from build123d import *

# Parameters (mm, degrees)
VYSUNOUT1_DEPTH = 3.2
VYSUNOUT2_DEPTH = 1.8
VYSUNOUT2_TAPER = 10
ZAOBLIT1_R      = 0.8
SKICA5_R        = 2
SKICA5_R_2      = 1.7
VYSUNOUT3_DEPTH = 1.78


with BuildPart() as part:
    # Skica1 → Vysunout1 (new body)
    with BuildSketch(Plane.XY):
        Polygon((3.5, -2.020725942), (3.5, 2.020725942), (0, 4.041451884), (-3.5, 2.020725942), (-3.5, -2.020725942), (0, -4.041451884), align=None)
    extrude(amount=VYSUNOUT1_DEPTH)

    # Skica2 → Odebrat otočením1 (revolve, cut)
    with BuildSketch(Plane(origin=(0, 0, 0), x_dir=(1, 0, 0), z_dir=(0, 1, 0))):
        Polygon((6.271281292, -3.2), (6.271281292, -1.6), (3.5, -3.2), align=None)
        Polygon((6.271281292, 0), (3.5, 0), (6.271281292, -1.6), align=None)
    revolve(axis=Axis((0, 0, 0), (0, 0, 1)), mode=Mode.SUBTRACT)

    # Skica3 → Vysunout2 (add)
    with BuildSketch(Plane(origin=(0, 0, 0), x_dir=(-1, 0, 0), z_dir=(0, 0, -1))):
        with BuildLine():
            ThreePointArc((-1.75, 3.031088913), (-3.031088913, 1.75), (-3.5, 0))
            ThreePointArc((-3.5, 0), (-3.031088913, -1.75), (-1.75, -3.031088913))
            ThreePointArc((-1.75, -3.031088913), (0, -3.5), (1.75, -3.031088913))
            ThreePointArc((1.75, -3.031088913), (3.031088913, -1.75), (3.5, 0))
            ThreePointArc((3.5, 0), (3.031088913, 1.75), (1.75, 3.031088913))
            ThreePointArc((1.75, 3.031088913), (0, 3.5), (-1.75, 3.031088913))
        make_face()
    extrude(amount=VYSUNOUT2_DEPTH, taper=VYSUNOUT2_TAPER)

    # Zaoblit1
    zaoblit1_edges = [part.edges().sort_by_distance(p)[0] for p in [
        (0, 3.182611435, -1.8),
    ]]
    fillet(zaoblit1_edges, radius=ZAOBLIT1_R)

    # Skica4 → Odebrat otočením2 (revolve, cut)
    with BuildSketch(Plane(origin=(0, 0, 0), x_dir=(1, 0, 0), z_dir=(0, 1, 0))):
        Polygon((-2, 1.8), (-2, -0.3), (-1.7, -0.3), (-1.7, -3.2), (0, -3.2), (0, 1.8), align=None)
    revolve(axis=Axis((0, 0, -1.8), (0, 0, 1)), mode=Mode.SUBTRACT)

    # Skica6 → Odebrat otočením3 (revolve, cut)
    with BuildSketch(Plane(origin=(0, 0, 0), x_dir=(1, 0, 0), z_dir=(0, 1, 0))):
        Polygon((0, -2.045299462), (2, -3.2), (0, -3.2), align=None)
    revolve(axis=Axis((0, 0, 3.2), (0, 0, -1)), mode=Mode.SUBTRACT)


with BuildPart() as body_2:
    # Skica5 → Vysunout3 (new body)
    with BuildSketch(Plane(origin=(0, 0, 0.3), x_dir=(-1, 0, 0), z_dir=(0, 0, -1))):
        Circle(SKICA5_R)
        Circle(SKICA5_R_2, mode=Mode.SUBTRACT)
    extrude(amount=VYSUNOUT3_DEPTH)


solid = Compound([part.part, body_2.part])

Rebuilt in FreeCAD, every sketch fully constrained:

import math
import FreeCAD as App
import Part
import Sketcher
from FreeCAD import Vector
Q = App.Units.Quantity


def edges_at(feature, points):
    """Names of the edges that pass closest to the given points."""
    edges = feature.Shape.Edges
    near = lambda p: min(range(len(edges)), key=lambda i: edges[i].distToShape(Part.Vertex(*p))[0])
    return sorted({f"Edge{near(p) + 1}" for p in points})


def add_polygon(sketch, points):
    """Adds a closed chain of lines whose ends are joined by coincident constraints."""
    first, n = sketch.GeometryCount, len(points)
    for a, b in zip(points, points[1:] + points[:1]):
        sketch.addGeometry(Part.LineSegment(App.Vector(*a, 0), App.Vector(*b, 0)), False)
    for i in range(n):
        sketch.addConstraint(Sketcher.Constraint("Coincident", first + i, 2, first + (i + 1) % n, 1))

doc = App.newDocument("Part")
body = doc.addObject("PartDesign::Body", "Body")

# Sketch on XY plane
sketch1 = doc.addObject("Sketcher::SketchObject", "Sketch")
body.addObject(sketch1)
sketch1.AttachmentSupport = (doc.XY_Plane, [""])
sketch1.MapMode = "FlatFace"
add_polygon(sketch1, [(3.5, -2.020726), (3.5, 2.020726), (0, 4.041452), (-3.5, 2.020726), (-3.5, -2.020726), (0, -4.041452)])  # lines 0-5
sketch1.addConstraint(Sketcher.Constraint("Vertical", 0))
sketch1.addConstraint(Sketcher.Constraint("Vertical", 3))
sketch1.addConstraint(Sketcher.Constraint("Symmetric", 0, 2, 3, 2, -1, 1))
sketch1.addConstraint(Sketcher.Constraint("Symmetric", 1, 2, 4, 2, -1, 1))
sketch1.addConstraint(Sketcher.Constraint("PointOnObject", 1, 2, -2))
sketch1.addConstraint(Sketcher.Constraint("Parallel", 2, 5))
sketch1.addConstraint(Sketcher.Constraint("Horizontal", 0, 2, 2, 2))
sketch1.addConstraint(Sketcher.Constraint("Angle", 1, Q("150 deg")))
sketch1.addConstraint(Sketcher.Constraint("DistanceX", 2, 2, 0, 2, 7.0))
sketch1.addConstraint(Sketcher.Constraint("DistanceY", 0, 1, 0, 2, 4.041452))
pad1 = doc.addObject("PartDesign::Pad", "Pad")
body.addObject(pad1)
pad1.Profile = sketch1
pad1.Length = 3.2

# Sketch on XZ plane
sketch2 = doc.addObject("Sketcher::SketchObject", "Sketch001")
body.addObject(sketch2)
sketch2.AttachmentSupport = (doc.XZ_Plane, [""])
sketch2.MapMode = "FlatFace"
add_polygon(sketch2, [(6.271281, 3.2), (6.271281, 1.6), (3.5, 3.2)])  # lines 0-2
add_polygon(sketch2, [(6.271281, 0), (3.5, 0), (6.271281, 1.6)])  # lines 3-5
sketch2.addConstraint(Sketcher.Constraint("Vertical", 0))
sketch2.addConstraint(Sketcher.Constraint("Horizontal", 2))
sketch2.addConstraint(Sketcher.Constraint("Horizontal", 3))
sketch2.addConstraint(Sketcher.Constraint("Vertical", 5))
sketch2.addConstraint(Sketcher.Constraint("Coincident", 4, 2, 0, 2))
sketch2.addConstraint(Sketcher.Constraint("PointOnObject", 3, 2, -1))
sketch2.addConstraint(Sketcher.Constraint("Vertical", 1, 2, 3, 2))
sketch2.addConstraint(Sketcher.Constraint("Equal", 0, 5))
sketch2.addConstraint(Sketcher.Constraint("Angle", 1, Q("150 deg")))
sketch2.addConstraint(Sketcher.Constraint("DistanceY", 0, 2, 0, 1, 1.6))
sketch2.addConstraint(Sketcher.Constraint("DistanceX", -1, 1, 1, 2, 3.5))
groove = doc.addObject("PartDesign::Groove", "Groove")
body.addObject(groove)
groove.Profile = sketch2
groove.ReferenceAxis = (sketch2, ["V_Axis"])
groove.Angle = 360

# Sketch on XY plane
sketch3 = doc.addObject("Sketcher::SketchObject", "Sketch002")
body.addObject(sketch3)
sketch3.AttachmentSupport = (doc.XY_Plane, [""])
sketch3.MapMode = "FlatFace"
sketch3.addGeometry(Part.ArcOfCircle(Part.Circle(Vector(0, 0, 0), Vector(0, 0, 1), 3.5), math.radians(0), math.radians(60)), False)
sketch3.addGeometry(Part.ArcOfCircle(Part.Circle(Vector(0, 0, 0), Vector(0, 0, 1), 3.5), math.radians(-60), math.radians(0)), False)
sketch3.addGeometry(Part.ArcOfCircle(Part.Circle(Vector(0, 0, 0), Vector(0, 0, 1), 3.5), math.radians(-120), math.radians(-60)), False)
sketch3.addGeometry(Part.ArcOfCircle(Part.Circle(Vector(0, 0, 0), Vector(0, 0, 1), 3.5), math.radians(-180), math.radians(-120)), False)
sketch3.addGeometry(Part.ArcOfCircle(Part.Circle(Vector(0, 0, 0), Vector(0, 0, 1), 3.5), math.radians(120), math.radians(180)), False)
sketch3.addGeometry(Part.ArcOfCircle(Part.Circle(Vector(0, 0, 0), Vector(0, 0, 1), 3.5), math.radians(60), math.radians(120)), False)
sketch3.addConstraint(Sketcher.Constraint("Tangent", 0, 1, 1, 2))
sketch3.addConstraint(Sketcher.Constraint("Tangent", 1, 1, 2, 2))
sketch3.addConstraint(Sketcher.Constraint("Tangent", 2, 1, 3, 2))
sketch3.addConstraint(Sketcher.Constraint("Tangent", 3, 1, 4, 2))
sketch3.addConstraint(Sketcher.Constraint("Tangent", 4, 1, 5, 2))
sketch3.addConstraint(Sketcher.Constraint("Tangent", 5, 1, 0, 2))
sketch3.addConstraint(Sketcher.Constraint("Coincident", 0, 3, -1, 1))
sketch3.addConstraint(Sketcher.Constraint("Coincident", 2, 3, -1, 1))
sketch3.addConstraint(Sketcher.Constraint("Equal", 2, 3))
sketch3.addConstraint(Sketcher.Constraint("PointOnObject", 0, 1, -1))
sketch3.addConstraint(Sketcher.Constraint("PointOnObject", 3, 1, -1))
sketch3.addConstraint(Sketcher.Constraint("Horizontal", 1, 1, 2, 1))
sketch3.addConstraint(Sketcher.Constraint("Horizontal", 4, 1, 5, 1))
sketch3.addConstraint(Sketcher.Constraint("Vertical", 2, 1, 4, 1))
sketch3.addConstraint(Sketcher.Constraint("Radius", 0, 3.5))
sketch3.addConstraint(Sketcher.Constraint("DistanceX", 2, 1, 1, 1, 3.5))
pad2 = doc.addObject("PartDesign::Pad", "Pad001")
body.addObject(pad2)
pad2.Profile = sketch3
pad2.Length = 1.8
pad2.Reversed = True
pad2.TaperAngle = -10
doc.recompute()

fillet = doc.addObject("PartDesign::Fillet", "Fillet")
body.addObject(fillet)
fillet.Base = (pad2, edges_at(pad2, [(0, 3.183, -1.8)]))
fillet.Radius = 0.8

# Sketch on XZ plane
sketch4 = doc.addObject("Sketcher::SketchObject", "Sketch003")
body.addObject(sketch4)
sketch4.AttachmentSupport = (doc.XZ_Plane, [""])
sketch4.MapMode = "FlatFace"
add_polygon(sketch4, [(-2, -1.8), (-2, 0.3), (-1.7, 0.3), (-1.7, 3.2), (0, 3.2), (0, -1.8)])  # lines 0-5
sketch4.addConstraint(Sketcher.Constraint("Vertical", 0))
sketch4.addConstraint(Sketcher.Constraint("Horizontal", 1))
sketch4.addConstraint(Sketcher.Constraint("Vertical", 2))
sketch4.addConstraint(Sketcher.Constraint("Horizontal", 3))
sketch4.addConstraint(Sketcher.Constraint("Vertical", 4))
sketch4.addConstraint(Sketcher.Constraint("Horizontal", 5))
sketch4.addConstraint(Sketcher.Constraint("PointOnObject", 3, 2, -2))
sketch4.addConstraint(Sketcher.Constraint("DistanceX", 5, 2, 5, 1, 2.0))
sketch4.addConstraint(Sketcher.Constraint("DistanceY", 4, 2, 4, 1, 5.0))
sketch4.addConstraint(Sketcher.Constraint("DistanceX", 1, 1, 1, 2, 0.3))
sketch4.addConstraint(Sketcher.Constraint("DistanceY", 0, 1, 0, 2, 2.1))
sketch4.addConstraint(Sketcher.Constraint("DistanceY", -1, 1, 0, 2, 0.3))
groove2 = doc.addObject("PartDesign::Groove", "Groove001")
body.addObject(groove2)
groove2.Profile = sketch4
groove2.ReferenceAxis = (sketch4, ["V_Axis"])
groove2.Angle = 360

# Sketch on XZ plane
sketch5 = doc.addObject("Sketcher::SketchObject", "Sketch004")
body.addObject(sketch5)
sketch5.AttachmentSupport = (doc.XZ_Plane, [""])
sketch5.MapMode = "FlatFace"
add_polygon(sketch5, [(2, 3.2), (0, 2.045299), (0, 3.2)])  # lines 0-2
sketch5.addConstraint(Sketcher.Constraint("Vertical", 1))
sketch5.addConstraint(Sketcher.Constraint("Horizontal", 2))
sketch5.addConstraint(Sketcher.Constraint("PointOnObject", 0, 2, -2))
sketch5.addConstraint(Sketcher.Constraint("DistanceX", 2, 1, 2, 2, 2.0))
sketch5.addConstraint(Sketcher.Constraint("Angle", 0, Q("-150 deg")))
sketch5.addConstraint(Sketcher.Constraint("DistanceY", -1, 1, 1, 2, 3.2))
groove3 = doc.addObject("PartDesign::Groove", "Groove002")
body.addObject(groove3)
groove3.Profile = sketch5
groove3.ReferenceAxis = (sketch5, ["V_Axis"])
groove3.Angle = 360
body2 = doc.addObject("PartDesign::Body", "Body001")

# Sketch on XY plane
sketch6 = doc.addObject("Sketcher::SketchObject", "Sketch005")
body2.addObject(sketch6)
sketch6.AttachmentSupport = (doc.getObject("XY_Plane001"), [""])
sketch6.MapMode = "FlatFace"
sketch6.AttachmentOffset = App.Placement(Vector(0, 0, 0.3), App.Rotation())
sketch6.addGeometry(Part.Circle(Vector(0, 0, 0), Vector(0, 0, 1), 2), False)
sketch6.addGeometry(Part.Circle(Vector(0, 0, 0), Vector(0, 0, 1), 1.7), False)
sketch6.addConstraint(Sketcher.Constraint("Coincident", 0, 3, -1, 1))
sketch6.addConstraint(Sketcher.Constraint("Coincident", 1, 3, -1, 1))
sketch6.addConstraint(Sketcher.Constraint("Diameter", 0, 4.0))
sketch6.addConstraint(Sketcher.Constraint("Diameter", 1, 3.4))
pad3 = doc.addObject("PartDesign::Pad", "Pad002")
body2.addObject(pad3)
pad3.Profile = sketch6
pad3.Length = 1.78
pad3.Reversed = True

doc.recompute()
